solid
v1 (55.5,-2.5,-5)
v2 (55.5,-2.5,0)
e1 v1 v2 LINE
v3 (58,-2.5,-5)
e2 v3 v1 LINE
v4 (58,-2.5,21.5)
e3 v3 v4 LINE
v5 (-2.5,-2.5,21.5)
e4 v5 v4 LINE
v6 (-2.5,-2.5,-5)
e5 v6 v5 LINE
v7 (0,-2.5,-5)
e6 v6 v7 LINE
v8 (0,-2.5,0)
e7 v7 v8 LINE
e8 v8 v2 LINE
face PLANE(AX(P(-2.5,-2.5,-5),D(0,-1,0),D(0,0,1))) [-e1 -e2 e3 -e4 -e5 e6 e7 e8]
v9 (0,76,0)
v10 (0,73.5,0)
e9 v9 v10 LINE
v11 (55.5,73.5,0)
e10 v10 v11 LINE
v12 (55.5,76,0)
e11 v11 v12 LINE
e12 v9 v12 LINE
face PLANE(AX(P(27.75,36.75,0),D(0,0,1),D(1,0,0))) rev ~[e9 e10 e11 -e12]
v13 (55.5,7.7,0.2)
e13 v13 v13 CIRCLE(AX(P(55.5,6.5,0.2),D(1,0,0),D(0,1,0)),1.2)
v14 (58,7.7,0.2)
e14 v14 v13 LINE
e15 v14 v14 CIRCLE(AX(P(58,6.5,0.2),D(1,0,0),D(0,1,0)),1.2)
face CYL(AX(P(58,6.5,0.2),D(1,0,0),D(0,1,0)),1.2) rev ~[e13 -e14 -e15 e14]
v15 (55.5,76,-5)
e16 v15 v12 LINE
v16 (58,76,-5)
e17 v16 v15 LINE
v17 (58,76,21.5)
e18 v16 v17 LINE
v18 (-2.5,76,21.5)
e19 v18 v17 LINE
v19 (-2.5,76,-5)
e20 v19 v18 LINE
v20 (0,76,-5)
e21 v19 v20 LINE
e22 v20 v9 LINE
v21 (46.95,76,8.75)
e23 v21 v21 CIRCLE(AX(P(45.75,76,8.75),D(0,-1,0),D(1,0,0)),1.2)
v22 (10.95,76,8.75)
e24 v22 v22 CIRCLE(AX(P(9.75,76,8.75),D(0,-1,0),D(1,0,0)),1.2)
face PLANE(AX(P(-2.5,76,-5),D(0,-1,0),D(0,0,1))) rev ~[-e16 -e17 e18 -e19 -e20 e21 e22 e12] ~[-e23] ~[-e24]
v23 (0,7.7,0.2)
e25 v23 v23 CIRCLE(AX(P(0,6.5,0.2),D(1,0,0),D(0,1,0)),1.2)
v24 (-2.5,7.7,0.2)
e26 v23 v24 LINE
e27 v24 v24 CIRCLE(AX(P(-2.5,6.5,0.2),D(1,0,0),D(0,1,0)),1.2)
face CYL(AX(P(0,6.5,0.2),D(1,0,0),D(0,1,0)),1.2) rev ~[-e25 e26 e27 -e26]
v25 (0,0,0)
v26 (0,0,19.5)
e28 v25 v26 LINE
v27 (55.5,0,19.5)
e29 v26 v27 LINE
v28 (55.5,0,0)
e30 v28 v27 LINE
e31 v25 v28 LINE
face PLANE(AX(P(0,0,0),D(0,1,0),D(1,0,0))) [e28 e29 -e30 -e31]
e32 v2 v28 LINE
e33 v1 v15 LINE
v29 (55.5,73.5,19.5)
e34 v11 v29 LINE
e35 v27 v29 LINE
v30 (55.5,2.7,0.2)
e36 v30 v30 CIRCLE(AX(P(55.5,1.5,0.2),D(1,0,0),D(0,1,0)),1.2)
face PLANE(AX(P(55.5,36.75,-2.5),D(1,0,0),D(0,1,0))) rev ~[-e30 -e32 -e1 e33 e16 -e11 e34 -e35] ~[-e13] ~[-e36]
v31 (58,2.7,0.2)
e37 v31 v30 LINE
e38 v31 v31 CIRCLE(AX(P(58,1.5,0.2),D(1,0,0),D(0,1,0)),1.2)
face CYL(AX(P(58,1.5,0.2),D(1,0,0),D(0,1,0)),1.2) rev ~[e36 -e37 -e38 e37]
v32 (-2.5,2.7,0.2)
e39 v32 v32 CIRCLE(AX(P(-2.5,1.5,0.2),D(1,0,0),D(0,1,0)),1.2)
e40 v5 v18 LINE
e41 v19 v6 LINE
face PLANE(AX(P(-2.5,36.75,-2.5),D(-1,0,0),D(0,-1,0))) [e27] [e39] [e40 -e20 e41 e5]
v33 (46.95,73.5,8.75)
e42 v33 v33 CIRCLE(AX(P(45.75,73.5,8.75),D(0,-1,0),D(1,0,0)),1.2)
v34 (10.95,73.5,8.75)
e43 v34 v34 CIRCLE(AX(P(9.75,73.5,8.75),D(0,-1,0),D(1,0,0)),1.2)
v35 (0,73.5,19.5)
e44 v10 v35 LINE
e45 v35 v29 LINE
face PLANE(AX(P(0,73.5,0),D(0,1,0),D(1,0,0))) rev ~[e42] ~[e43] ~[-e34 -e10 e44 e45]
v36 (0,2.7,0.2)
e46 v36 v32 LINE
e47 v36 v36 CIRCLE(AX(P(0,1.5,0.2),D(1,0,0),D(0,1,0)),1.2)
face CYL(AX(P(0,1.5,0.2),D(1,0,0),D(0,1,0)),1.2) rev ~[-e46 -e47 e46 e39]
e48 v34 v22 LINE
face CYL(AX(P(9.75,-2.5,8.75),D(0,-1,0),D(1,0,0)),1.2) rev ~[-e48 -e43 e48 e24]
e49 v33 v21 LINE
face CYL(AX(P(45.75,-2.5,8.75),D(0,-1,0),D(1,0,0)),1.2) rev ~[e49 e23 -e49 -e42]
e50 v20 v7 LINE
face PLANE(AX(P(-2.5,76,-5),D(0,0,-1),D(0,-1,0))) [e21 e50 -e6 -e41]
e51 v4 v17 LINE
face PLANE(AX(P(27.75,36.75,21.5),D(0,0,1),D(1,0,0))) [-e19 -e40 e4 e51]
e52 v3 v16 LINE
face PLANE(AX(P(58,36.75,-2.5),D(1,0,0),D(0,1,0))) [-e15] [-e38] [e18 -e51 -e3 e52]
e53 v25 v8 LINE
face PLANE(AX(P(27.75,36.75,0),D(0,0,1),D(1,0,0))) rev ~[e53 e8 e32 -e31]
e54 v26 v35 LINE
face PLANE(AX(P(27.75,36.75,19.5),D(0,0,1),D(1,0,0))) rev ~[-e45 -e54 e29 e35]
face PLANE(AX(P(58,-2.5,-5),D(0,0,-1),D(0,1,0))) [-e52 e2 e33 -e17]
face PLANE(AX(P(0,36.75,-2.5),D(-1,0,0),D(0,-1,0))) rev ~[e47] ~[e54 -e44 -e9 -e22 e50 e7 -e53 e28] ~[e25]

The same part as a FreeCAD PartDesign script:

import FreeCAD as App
import Part
import Sketcher
from FreeCAD import Vector
Q = App.Units.Quantity

doc = App.newDocument("Part")
body = doc.addObject("PartDesign::Body", "Body")

# Sketch on XY plane
sketch1 = body.newObject("Sketcher::SketchObject", "Sketch")
sketch1.AttachmentSupport = (doc.getObject("XY_Plane"), [""])
sketch1.MapMode = "FlatFace"
sketch1.addGeometry(Part.LineSegment(Vector(-2.5, 76, 0), Vector(-2.5, -2.5, 0)), False)
sketch1.addGeometry(Part.LineSegment(Vector(-2.5, -2.5, 0), Vector(58, -2.5, 0)), False)
sketch1.addGeometry(Part.LineSegment(Vector(58, -2.5, 0), Vector(58, 76, 0)), False)
sketch1.addGeometry(Part.LineSegment(Vector(58, 76, 0), Vector(-2.5, 76, 0)), False)
sketch1.addConstraint(Sketcher.Constraint("Coincident", 0, 2, 1, 1))
sketch1.addConstraint(Sketcher.Constraint("Coincident", 1, 2, 2, 1))
sketch1.addConstraint(Sketcher.Constraint("Coincident", 2, 2, 3, 1))
sketch1.addConstraint(Sketcher.Constraint("Coincident", 3, 2, 0, 1))
sketch1.addConstraint(Sketcher.Constraint("Vertical", 0))
sketch1.addConstraint(Sketcher.Constraint("Horizontal", 1))
sketch1.addConstraint(Sketcher.Constraint("Vertical", 2))
sketch1.addConstraint(Sketcher.Constraint("Horizontal", 3))
sketch1.addConstraint(Sketcher.Constraint("DistanceX", 1, 1, 1, 2, Q("60.5 mm")))
sketch1.addConstraint(Sketcher.Constraint("DistanceY", 0, 2, 0, 1, Q("78.5 mm")))
sketch1.addConstraint(Sketcher.Constraint("DistanceX", -1, 1, 1, 2, Q("58 mm")))
sketch1.addConstraint(Sketcher.Constraint("DistanceY", -1, 1, 2, 2, Q("76 mm")))
pad1 = body.newObject("PartDesign::Pad", "Pad")
pad1.Profile = sketch1
pad1.Length = 21.5

# Sketch on XY plane
sketch2 = body.newObject("Sketcher::SketchObject", "Sketch001")
sketch2.AttachmentSupport = (doc.getObject("XY_Plane"), [""])
sketch2.MapMode = "FlatFace"
sketch2.addGeometry(Part.LineSegment(Vector(0, 73.5, 0), Vector(0, 0, 0)), False)
sketch2.addGeometry(Part.LineSegment(Vector(0, 0, 0), Vector(55.5, 0, 0)), False)
sketch2.addGeometry(Part.LineSegment(Vector(55.5, 0, 0), Vector(55.5, 73.5, 0)), False)
sketch2.addGeometry(Part.LineSegment(Vector(55.5, 73.5, 0), Vector(0, 73.5, 0)), False)
sketch2.addConstraint(Sketcher.Constraint("Coincident", 0, 2, 1, 1))
sketch2.addConstraint(Sketcher.Constraint("Coincident", 1, 2, 2, 1))
sketch2.addConstraint(Sketcher.Constraint("Coincident", 2, 2, 3, 1))
sketch2.addConstraint(Sketcher.Constraint("Coincident", 3, 2, 0, 1))
sketch2.addConstraint(Sketcher.Constraint("Vertical", 0))
sketch2.addConstraint(Sketcher.Constraint("Horizontal", 1))
sketch2.addConstraint(Sketcher.Constraint("Vertical", 2))
sketch2.addConstraint(Sketcher.Constraint("Horizontal", 3))
sketch2.addConstraint(Sketcher.Constraint("Coincident", 0, 2, -1, 1))
sketch2.addConstraint(Sketcher.Constraint("DistanceX", 1, 1, 1, 2, Q("55.5 mm")))
sketch2.addConstraint(Sketcher.Constraint("DistanceY", 0, 2, 0, 1, Q("73.5 mm")))
pocket1 = body.newObject("PartDesign::Pocket", "Pocket")
pocket1.Profile = sketch2
pocket1.Length = 19.5
pocket1.Reversed = True

# Sketch on YZ plane
sketch3 = body.newObject("Sketcher::SketchObject", "Sketch002")
sketch3.AttachmentSupport = (doc.getObject("YZ_Plane"), [""])
sketch3.MapMode = "FlatFace"
sketch3.AttachmentOffset = App.Placement(Vector(0, 0, 58), App.Rotation())
sketch3.addGeometry(Part.LineSegment(Vector(-2.5, 0, 0), Vector(-2.5, -5, 0)), False)
sketch3.addGeometry(Part.LineSegment(Vector(-2.5, -5, 0), Vector(76, -5, 0)), False)
sketch3.addGeometry(Part.LineSegment(Vector(76, -5, 0), Vector(76, 0, 0)), False)
sketch3.addGeometry(Part.LineSegment(Vector(76, 0, 0), Vector(-2.5, 0, 0)), False)
sketch3.addConstraint(Sketcher.Constraint("Coincident", 0, 2, 1, 1))
sketch3.addConstraint(Sketcher.Constraint("Coincident", 1, 2, 2, 1))
sketch3.addConstraint(Sketcher.Constraint("Coincident", 2, 2, 3, 1))
sketch3.addConstraint(Sketcher.Constraint("Coincident", 3, 2, 0, 1))
sketch3.addConstraint(Sketcher.Constraint("Vertical", 0))
sketch3.addConstraint(Sketcher.Constraint("Horizontal", 1))
sketch3.addConstraint(Sketcher.Constraint("Vertical", 2))
sketch3.addConstraint(Sketcher.Constraint("Horizontal", 3))
sketch3.addConstraint(Sketcher.Constraint("PointOnObject", 2, 2, -1))
sketch3.addConstraint(Sketcher.Constraint("DistanceY", 0, 2, 0, 1, Q("5 mm")))
sketch3.addConstraint(Sketcher.Constraint("DistanceX", 1, 1, 1, 2, Q("78.5 mm")))
sketch3.addConstraint(Sketcher.Constraint("DistanceX", -1, 1, 1, 2, Q("76 mm")))
pad2 = body.newObject("PartDesign::Pad", "Pad001")
pad2.Profile = sketch3
pad2.Length = 2.5
pad2.Reversed = True

# Sketch on YZ plane
sketch4 = body.newObject("Sketcher::SketchObject", "Sketch003")
sketch4.AttachmentSupport = (doc.getObject("YZ_Plane"), [""])
sketch4.MapMode = "FlatFace"
sketch4.AttachmentOffset = App.Placement(Vector(0, 0, 58), App.Rotation())
sketch4.addGeometry(Part.Circle(Vector(1.5, 0.2, 0), Vector(0, 0, 1), 1.2), False)
sketch4.addGeometry(Part.Circle(Vector(6.5, 0.2, 0), Vector(0, 0, 1), 1.2), False)
sketch4.addConstraint(Sketcher.Constraint("Equal", 0, 1))
sketch4.addConstraint(Sketcher.Constraint("Horizontal", 0, 3, 1, 3))
sketch4.addConstraint(Sketcher.Constraint("Diameter", 0, Q("2.4 mm")))
sketch4.addConstraint(Sketcher.Constraint("DistanceX", 0, 3, 1, 3, Q("5 mm")))
sketch4.addConstraint(Sketcher.Constraint("DistanceX", -1, 1, 0, 3, Q("1.5 mm")))
sketch4.addConstraint(Sketcher.Constraint("DistanceY", -1, 1, 0, 3, Q("0.2 mm")))
pocket2 = body.newObject("PartDesign::Pocket", "Pocket001")
pocket2.Profile = sketch4
pocket2.Length = 25

# Sketch on YZ plane
sketch5 = body.newObject("Sketcher::SketchObject", "Sketch004")
sketch5.AttachmentSupport = (doc.getObject("YZ_Plane"), [""])
sketch5.MapMode = "FlatFace"
sketch5.AttachmentOffset = App.Placement(Vector(0, 0, -2.5), App.Rotation())
sketch5.addGeometry(Part.LineSegment(Vector(76, 0, 0), Vector(76, -5, 0)), False)
sketch5.addGeometry(Part.LineSegment(Vector(76, -5, 0), Vector(-2.5, -5, 0)), False)
sketch5.addGeometry(Part.LineSegment(Vector(-2.5, -5, 0), Vector(-2.5, 0, 0)), False)
sketch5.addGeometry(Part.LineSegment(Vector(-2.5, 0, 0), Vector(76, 0, 0)), False)
sketch5.addConstraint(Sketcher.Constraint("Coincident", 0, 2, 1, 1))
sketch5.addConstraint(Sketcher.Constraint("Coincident", 1, 2, 2, 1))
sketch5.addConstraint(Sketcher.Constraint("Coincident", 2, 2, 3, 1))
sketch5.addConstraint(Sketcher.Constraint("Coincident", 3, 2, 0, 1))
sketch5.addConstraint(Sketcher.Constraint("Vertical", 0))
sketch5.addConstraint(Sketcher.Constraint("Horizontal", 1))
sketch5.addConstraint(Sketcher.Constraint("Vertical", 2))
sketch5.addConstraint(Sketcher.Constraint("Horizontal", 3))
sketch5.addConstraint(Sketcher.Constraint("PointOnObject", 2, 2, -1))
sketch5.addConstraint(Sketcher.Constraint("DistanceY", 0, 2, 0, 1, Q("5 mm")))
sketch5.addConstraint(Sketcher.Constraint("DistanceX", 1, 2, 1, 1, Q("78.5 mm")))
sketch5.addConstraint(Sketcher.Constraint("DistanceX", -1, 1, 0, 2, Q("76 mm")))
pad3 = body.newObject("PartDesign::Pad", "Pad002")
pad3.Profile = sketch5
pad3.Length = 2.5

# Sketch on YZ plane
sketch6 = body.newObject("Sketcher::SketchObject", "Sketch005")
sketch6.AttachmentSupport = (doc.getObject("YZ_Plane"), [""])
sketch6.MapMode = "FlatFace"
sketch6.addGeometry(Part.Circle(Vector(1.5, 0.2, 0), Vector(0, 0, 1), 1.2), False)
sketch6.addGeometry(Part.Circle(Vector(6.5, 0.2, 0), Vector(0, 0, 1), 1.2), False)
sketch6.addConstraint(Sketcher.Constraint("Equal", 0, 1))
sketch6.addConstraint(Sketcher.Constraint("Horizontal", 0, 3, 1, 3))
sketch6.addConstraint(Sketcher.Constraint("Diameter", 0, Q("2.4 mm")))
sketch6.addConstraint(Sketcher.Constraint("DistanceX", 0, 3, 1, 3, Q("5 mm")))
sketch6.addConstraint(Sketcher.Constraint("DistanceX", -1, 1, 0, 3, Q("1.5 mm")))
sketch6.addConstraint(Sketcher.Constraint("DistanceY", -1, 1, 0, 3, Q("0.2 mm")))
pocket3 = body.newObject("PartDesign::Pocket", "Pocket002")
pocket3.Profile = sketch6
pocket3.Length = 25

# Sketch on XZ plane
sketch7 = body.newObject("Sketcher::SketchObject", "Sketch006")
sketch7.AttachmentSupport = (doc.getObject("XZ_Plane"), [""])
sketch7.MapMode = "FlatFace"
sketch7.AttachmentOffset = App.Placement(Vector(0, 0, 2.5), App.Rotation())
sketch7.addGeometry(Part.Circle(Vector(9.75, 8.75, 0), Vector(0, 0, 1), 1.2), False)
sketch7.addGeometry(Part.Circle(Vector(45.75, 8.75, 0), Vector(0, 0, 1), 1.2), False)
sketch7.addConstraint(Sketcher.Constraint("Equal", 0, 1))
sketch7.addConstraint(Sketcher.Constraint("Horizontal", 0, 3, 1, 3))
sketch7.addConstraint(Sketcher.Constraint("Diameter", 0, Q("2.4 mm")))
sketch7.addConstraint(Sketcher.Constraint("DistanceX", 0, 3, 1, 3, Q("36 mm")))
sketch7.addConstraint(Sketcher.Constraint("DistanceX", -1, 1, 0, 3, Q("9.75 mm")))
sketch7.addConstraint(Sketcher.Constraint("DistanceY", -1, 1, 0, 3, Q("8.75 mm")))
pocket4 = body.newObject("PartDesign::Pocket", "Pocket003")
pocket4.Profile = sketch7
pocket4.Length = 80

# Sketch on XZ plane
sketch8 = body.newObject("Sketcher::SketchObject", "Sketch007")
sketch8.AttachmentSupport = (doc.getObject("XZ_Plane"), [""])
sketch8.MapMode = "FlatFace"
sketch8.AttachmentOffset = App.Placement(Vector(0, 0, 2.5), App.Rotation())
sketch8.addGeometry(Part.LineSegment(Vector(5.05797, 12.19016, 0), Vector(5.05797, 4.751788, 0)), False)
sketch8.addGeometry(Part.LineSegment(Vector(5.05797, 4.751788, 0), Vector(49.154174, 4.751788, 0)), False)
sketch8.addGeometry(Part.LineSegment(Vector(49.154174, 4.751788, 0), Vector(49.154174, 12.19016, 0)), False)
sketch8.addGeometry(Part.LineSegment(Vector(49.154174, 12.19016, 0), Vector(5.05797, 12.19016, 0)), False)
sketch8.addConstraint(Sketcher.Constraint("Coincident", 0, 2, 1, 1))
sketch8.addConstraint(Sketcher.Constraint("Coincident", 1, 2, 2, 1))
sketch8.addConstraint(Sketcher.Constraint("Coincident", 2, 2, 3, 1))
sketch8.addConstraint(Sketcher.Constraint("Coincident", 3, 2, 0, 1))
sketch8.addConstraint(Sketcher.Constraint("Vertical", 0))
sketch8.addConstraint(Sketcher.Constraint("Horizontal", 1))
sketch8.addConstraint(Sketcher.Constraint("Vertical", 2))
sketch8.addConstraint(Sketcher.Constraint("Horizontal", 3))
sketch8.addConstraint(Sketcher.Constraint("DistanceX", 1, 1, 1, 2, Q("44.096204 mm")))
sketch8.addConstraint(Sketcher.Constraint("DistanceY", 0, 2, 0, 1, Q("7.438373 mm")))
sketch8.addConstraint(Sketcher.Constraint("DistanceX", -1, 1, 0, 2, Q("5.05797 mm")))
sketch8.addConstraint(Sketcher.Constraint("DistanceY", -1, 1, 2, 2, Q("12.19016 mm")))
pad4 = body.newObject("PartDesign::Pad", "Pad003")
pad4.Profile = sketch8
pad4.Length = 2.5
pad4.Reversed = True

doc.recompute()
